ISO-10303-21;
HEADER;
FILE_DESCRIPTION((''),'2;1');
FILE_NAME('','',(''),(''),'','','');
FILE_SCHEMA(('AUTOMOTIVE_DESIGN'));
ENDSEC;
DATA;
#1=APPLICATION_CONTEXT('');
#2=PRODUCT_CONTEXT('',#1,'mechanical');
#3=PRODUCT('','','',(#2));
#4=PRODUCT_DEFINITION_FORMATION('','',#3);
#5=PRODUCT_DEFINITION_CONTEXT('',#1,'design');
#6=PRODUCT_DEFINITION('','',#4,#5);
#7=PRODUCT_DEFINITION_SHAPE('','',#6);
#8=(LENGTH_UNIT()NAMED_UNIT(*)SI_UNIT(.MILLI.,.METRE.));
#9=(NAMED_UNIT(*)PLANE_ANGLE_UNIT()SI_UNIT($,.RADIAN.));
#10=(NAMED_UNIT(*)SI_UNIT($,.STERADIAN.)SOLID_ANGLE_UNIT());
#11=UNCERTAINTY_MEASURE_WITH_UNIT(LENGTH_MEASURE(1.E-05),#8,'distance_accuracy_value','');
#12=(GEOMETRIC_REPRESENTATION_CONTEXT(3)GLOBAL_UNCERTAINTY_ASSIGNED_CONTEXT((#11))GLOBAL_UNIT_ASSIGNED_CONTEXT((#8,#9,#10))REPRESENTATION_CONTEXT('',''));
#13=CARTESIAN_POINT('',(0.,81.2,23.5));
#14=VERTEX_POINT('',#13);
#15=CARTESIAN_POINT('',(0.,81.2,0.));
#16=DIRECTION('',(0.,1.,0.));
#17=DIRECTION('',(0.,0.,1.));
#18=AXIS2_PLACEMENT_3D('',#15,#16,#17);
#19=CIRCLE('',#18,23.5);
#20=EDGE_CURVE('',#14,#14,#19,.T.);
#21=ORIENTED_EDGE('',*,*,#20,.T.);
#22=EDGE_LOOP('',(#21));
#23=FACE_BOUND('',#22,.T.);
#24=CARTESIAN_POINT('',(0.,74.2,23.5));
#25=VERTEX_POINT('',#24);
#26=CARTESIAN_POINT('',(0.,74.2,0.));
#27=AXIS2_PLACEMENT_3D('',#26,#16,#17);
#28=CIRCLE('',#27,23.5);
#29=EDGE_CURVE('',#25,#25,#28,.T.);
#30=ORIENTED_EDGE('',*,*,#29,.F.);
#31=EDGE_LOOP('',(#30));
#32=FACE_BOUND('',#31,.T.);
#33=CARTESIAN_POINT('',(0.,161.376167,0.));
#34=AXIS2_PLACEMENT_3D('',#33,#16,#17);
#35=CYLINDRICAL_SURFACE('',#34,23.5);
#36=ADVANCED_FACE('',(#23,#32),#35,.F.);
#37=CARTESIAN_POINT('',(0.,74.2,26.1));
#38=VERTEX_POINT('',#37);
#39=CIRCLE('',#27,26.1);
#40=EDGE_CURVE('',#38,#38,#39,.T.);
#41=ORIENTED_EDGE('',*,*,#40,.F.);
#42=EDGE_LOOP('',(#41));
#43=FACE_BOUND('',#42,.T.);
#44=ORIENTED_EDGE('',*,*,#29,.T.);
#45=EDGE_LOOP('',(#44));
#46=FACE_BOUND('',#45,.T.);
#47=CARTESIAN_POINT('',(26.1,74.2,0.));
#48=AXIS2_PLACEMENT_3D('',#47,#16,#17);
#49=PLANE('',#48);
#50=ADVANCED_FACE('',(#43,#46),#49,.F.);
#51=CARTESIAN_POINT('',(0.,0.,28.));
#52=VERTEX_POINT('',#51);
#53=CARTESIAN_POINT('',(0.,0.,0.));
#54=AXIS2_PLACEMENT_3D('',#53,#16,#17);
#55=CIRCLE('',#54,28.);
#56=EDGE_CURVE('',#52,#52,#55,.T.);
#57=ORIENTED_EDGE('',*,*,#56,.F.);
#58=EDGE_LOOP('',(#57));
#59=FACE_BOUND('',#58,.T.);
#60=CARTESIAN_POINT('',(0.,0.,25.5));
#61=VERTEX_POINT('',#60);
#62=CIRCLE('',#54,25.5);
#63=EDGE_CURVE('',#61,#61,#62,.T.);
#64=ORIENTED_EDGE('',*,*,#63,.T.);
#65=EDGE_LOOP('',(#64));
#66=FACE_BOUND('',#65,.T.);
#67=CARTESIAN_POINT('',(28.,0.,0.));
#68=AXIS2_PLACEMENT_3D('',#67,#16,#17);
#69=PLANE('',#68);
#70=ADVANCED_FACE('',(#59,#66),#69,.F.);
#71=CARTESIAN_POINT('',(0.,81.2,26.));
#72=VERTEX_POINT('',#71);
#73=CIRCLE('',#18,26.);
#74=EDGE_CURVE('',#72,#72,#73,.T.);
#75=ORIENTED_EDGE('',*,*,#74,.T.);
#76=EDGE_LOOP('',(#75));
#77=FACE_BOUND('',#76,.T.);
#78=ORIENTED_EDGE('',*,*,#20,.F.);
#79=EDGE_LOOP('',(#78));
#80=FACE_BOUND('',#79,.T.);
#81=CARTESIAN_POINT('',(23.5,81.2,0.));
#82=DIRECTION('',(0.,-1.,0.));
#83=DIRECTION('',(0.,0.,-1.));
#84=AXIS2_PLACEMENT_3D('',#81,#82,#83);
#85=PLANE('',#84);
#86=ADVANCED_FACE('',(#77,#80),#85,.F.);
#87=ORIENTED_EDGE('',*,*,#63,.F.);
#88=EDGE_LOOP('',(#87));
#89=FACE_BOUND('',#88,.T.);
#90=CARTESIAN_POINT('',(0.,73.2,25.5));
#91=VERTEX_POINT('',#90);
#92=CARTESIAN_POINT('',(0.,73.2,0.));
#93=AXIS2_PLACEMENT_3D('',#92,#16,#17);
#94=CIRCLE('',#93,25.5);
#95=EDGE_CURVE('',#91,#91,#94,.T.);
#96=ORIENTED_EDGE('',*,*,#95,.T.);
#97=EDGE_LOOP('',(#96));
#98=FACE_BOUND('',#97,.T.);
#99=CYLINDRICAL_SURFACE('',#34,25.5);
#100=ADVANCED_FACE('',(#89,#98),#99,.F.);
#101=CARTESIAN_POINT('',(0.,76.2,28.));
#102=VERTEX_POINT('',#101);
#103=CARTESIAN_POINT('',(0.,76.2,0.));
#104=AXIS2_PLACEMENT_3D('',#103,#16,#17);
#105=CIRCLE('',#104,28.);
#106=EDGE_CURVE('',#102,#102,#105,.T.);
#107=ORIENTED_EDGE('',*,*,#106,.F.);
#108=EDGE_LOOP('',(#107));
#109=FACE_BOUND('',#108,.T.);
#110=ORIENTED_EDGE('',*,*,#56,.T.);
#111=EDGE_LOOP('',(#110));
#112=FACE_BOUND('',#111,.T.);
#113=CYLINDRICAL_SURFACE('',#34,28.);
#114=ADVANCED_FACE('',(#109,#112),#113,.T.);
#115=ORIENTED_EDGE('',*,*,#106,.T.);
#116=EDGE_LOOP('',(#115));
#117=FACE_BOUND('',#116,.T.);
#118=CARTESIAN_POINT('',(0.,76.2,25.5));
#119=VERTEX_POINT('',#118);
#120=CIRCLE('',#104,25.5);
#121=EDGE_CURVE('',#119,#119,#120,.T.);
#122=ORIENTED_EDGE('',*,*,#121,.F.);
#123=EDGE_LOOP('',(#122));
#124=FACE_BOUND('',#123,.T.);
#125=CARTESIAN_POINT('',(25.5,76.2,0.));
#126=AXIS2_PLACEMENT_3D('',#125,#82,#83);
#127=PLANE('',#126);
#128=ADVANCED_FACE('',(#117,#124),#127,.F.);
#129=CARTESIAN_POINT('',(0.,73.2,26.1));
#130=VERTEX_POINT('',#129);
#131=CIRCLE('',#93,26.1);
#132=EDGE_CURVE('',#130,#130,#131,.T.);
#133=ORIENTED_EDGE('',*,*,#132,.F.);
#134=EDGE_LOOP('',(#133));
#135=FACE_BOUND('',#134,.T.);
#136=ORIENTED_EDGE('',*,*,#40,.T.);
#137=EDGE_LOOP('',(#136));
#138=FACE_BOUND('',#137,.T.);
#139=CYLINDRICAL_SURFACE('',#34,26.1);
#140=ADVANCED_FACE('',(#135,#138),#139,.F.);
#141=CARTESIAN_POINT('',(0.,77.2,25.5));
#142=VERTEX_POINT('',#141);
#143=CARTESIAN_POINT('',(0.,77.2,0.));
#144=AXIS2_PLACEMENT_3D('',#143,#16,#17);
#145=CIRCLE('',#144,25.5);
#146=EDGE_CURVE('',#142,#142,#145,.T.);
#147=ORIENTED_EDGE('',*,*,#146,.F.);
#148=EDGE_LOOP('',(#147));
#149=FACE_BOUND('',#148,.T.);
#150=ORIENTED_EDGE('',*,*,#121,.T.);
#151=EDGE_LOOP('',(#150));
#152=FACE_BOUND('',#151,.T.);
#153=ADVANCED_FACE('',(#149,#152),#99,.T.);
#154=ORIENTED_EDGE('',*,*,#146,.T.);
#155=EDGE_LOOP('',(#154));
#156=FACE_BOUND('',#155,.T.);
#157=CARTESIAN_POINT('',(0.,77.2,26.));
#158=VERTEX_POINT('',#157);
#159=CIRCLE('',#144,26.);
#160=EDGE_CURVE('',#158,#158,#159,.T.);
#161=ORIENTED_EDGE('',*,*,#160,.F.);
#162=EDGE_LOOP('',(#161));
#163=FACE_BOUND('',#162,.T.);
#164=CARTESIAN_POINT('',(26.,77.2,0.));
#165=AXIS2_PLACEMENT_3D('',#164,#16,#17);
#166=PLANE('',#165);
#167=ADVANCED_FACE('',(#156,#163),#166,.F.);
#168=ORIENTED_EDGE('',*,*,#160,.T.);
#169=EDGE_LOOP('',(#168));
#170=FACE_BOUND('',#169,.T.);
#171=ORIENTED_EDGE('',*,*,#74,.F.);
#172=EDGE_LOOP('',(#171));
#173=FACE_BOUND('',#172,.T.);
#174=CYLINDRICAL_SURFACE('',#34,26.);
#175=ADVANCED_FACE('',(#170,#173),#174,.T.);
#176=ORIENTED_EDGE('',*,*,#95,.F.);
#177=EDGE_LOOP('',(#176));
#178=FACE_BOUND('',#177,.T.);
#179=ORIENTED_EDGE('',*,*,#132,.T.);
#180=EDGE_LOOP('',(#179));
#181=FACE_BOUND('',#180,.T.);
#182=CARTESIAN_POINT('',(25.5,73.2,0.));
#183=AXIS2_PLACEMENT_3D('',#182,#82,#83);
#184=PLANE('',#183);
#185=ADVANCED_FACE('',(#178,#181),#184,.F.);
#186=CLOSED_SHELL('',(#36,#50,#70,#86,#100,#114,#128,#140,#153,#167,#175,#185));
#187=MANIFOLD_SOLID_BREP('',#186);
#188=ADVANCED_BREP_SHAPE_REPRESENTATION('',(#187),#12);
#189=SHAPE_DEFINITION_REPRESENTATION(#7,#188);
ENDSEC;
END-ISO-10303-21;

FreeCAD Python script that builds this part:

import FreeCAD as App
import Part
import Sketcher

V = App.Vector

doc = App.newDocument("Part")
body = doc.addObject("PartDesign::Body", "Body")

sketch1 = body.newObject("Sketcher::SketchObject", "Sketch")
sketch1.AttachmentSupport = (doc.getObject("XY_Plane"), [""])
sketch1.MapMode = "FlatFace"
sketch1.addGeometry(Part.LineSegment(V(26, 81.2, 0), V(23.5, 81.2, 0)), False)
sketch1.addGeometry(Part.LineSegment(V(23.5, 81.2, 0), V(23.5, 74.2, 0)), False)
sketch1.addGeometry(Part.LineSegment(V(23.5, 74.2, 0), V(26.1, 74.2, 0)), False)
sketch1.addGeometry(Part.LineSegment(V(26.1, 74.2, 0), V(26.1, 73.2, 0)), False)
sketch1.addGeometry(Part.LineSegment(V(26.1, 73.2, 0), V(25.5, 73.2, 0)), False)
sketch1.addGeometry(Part.LineSegment(V(25.5, 73.2, 0), V(25.5, 0, 0)), False)
sketch1.addGeometry(Part.LineSegment(V(25.5, 0, 0), V(28, 0, 0)), False)
sketch1.addGeometry(Part.LineSegment(V(28, 0, 0), V(28, 76.2, 0)), False)
sketch1.addGeometry(Part.LineSegment(V(28, 76.2, 0), V(25.5, 76.2, 0)), False)
sketch1.addGeometry(Part.LineSegment(V(25.5, 76.2, 0), V(25.5, 77.2, 0)), False)
sketch1.addGeometry(Part.LineSegment(V(25.5, 77.2, 0), V(26, 77.2, 0)), False)
sketch1.addGeometry(Part.LineSegment(V(26, 77.2, 0), V(26, 81.2, 0)), False)
sketch1.addConstraint(Sketcher.Constraint("Coincident", 0, 2, 1, 1))
sketch1.addConstraint(Sketcher.Constraint("Coincident", 1, 2, 2, 1))
sketch1.addConstraint(Sketcher.Constraint("Coincident", 2, 2, 3, 1))
sketch1.addConstraint(Sketcher.Constraint("Coincident", 3, 2, 4, 1))
sketch1.addConstraint(Sketcher.Constraint("Coincident", 4, 2, 5, 1))
sketch1.addConstraint(Sketcher.Constraint("Coincident", 5, 2, 6, 1))
sketch1.addConstraint(Sketcher.Constraint("Coincident", 6, 2, 7, 1))
sketch1.addConstraint(Sketcher.Constraint("Coincident", 7, 2, 8, 1))
sketch1.addConstraint(Sketcher.Constraint("Coincident", 8, 2, 9, 1))
sketch1.addConstraint(Sketcher.Constraint("Coincident", 9, 2, 10, 1))
sketch1.addConstraint(Sketcher.Constraint("Coincident", 10, 2, 11, 1))
sketch1.addConstraint(Sketcher.Constraint("Coincident", 11, 2, 0, 1))
sketch1.addConstraint(Sketcher.Constraint("Horizontal", 0))
sketch1.addConstraint(Sketcher.Constraint("Vertical", 1))
sketch1.addConstraint(Sketcher.Constraint("Horizontal", 2))
sketch1.addConstraint(Sketcher.Constraint("Vertical", 3))
sketch1.addConstraint(Sketcher.Constraint("Horizontal", 4))
sketch1.addConstraint(Sketcher.Constraint("Vertical", 5))
sketch1.addConstraint(Sketcher.Constraint("Horizontal", 6))
sketch1.addConstraint(Sketcher.Constraint("Vertical", 7))
sketch1.addConstraint(Sketcher.Constraint("Horizontal", 8))
sketch1.addConstraint(Sketcher.Constraint("Vertical", 9))
sketch1.addConstraint(Sketcher.Constraint("Horizontal", 10))
sketch1.addConstraint(Sketcher.Constraint("Vertical", 11))
sketch1.addConstraint(Sketcher.Constraint("PointOnObject", 5, 2, -1))
sketch1.addConstraint(Sketcher.Constraint("Vertical", 5, 2, 8, 2))
sketch1.addConstraint(Sketcher.Constraint("Equal", 0, 6))
sketch1.addConstraint(Sketcher.Constraint("Equal", 3, 9))
sketch1.addConstraint(Sketcher.Constraint("DistanceY", 1, 2, 1, 1, 7.0))
sketch1.addConstraint(Sketcher.Constraint("DistanceY", 3, 2, 3, 1, 1.0))
sketch1.addConstraint(Sketcher.Constraint("DistanceY", 11, 1, 11, 2, 4.0))
sketch1.addConstraint(Sketcher.Constraint("DistanceX", 0, 2, 0, 1, 2.5))
sketch1.addConstraint(Sketcher.Constraint("DistanceX", 2, 1, 2, 2, 2.6))
sketch1.addConstraint(Sketcher.Constraint("DistanceX", 4, 2, 4, 1, 0.6))
sketch1.addConstraint(Sketcher.Constraint("DistanceY", 5, 2, 5, 1, 73.2))
sketch1.addConstraint(Sketcher.Constraint("DistanceX", -1, 1, 6, 2, 28.0))
revolution = body.newObject("PartDesign::Revolution", "Revolution")
revolution.Profile = sketch1
revolution.ReferenceAxis = (sketch1, ["V_Axis"])
revolution.Angle = 360

doc.recompute()
